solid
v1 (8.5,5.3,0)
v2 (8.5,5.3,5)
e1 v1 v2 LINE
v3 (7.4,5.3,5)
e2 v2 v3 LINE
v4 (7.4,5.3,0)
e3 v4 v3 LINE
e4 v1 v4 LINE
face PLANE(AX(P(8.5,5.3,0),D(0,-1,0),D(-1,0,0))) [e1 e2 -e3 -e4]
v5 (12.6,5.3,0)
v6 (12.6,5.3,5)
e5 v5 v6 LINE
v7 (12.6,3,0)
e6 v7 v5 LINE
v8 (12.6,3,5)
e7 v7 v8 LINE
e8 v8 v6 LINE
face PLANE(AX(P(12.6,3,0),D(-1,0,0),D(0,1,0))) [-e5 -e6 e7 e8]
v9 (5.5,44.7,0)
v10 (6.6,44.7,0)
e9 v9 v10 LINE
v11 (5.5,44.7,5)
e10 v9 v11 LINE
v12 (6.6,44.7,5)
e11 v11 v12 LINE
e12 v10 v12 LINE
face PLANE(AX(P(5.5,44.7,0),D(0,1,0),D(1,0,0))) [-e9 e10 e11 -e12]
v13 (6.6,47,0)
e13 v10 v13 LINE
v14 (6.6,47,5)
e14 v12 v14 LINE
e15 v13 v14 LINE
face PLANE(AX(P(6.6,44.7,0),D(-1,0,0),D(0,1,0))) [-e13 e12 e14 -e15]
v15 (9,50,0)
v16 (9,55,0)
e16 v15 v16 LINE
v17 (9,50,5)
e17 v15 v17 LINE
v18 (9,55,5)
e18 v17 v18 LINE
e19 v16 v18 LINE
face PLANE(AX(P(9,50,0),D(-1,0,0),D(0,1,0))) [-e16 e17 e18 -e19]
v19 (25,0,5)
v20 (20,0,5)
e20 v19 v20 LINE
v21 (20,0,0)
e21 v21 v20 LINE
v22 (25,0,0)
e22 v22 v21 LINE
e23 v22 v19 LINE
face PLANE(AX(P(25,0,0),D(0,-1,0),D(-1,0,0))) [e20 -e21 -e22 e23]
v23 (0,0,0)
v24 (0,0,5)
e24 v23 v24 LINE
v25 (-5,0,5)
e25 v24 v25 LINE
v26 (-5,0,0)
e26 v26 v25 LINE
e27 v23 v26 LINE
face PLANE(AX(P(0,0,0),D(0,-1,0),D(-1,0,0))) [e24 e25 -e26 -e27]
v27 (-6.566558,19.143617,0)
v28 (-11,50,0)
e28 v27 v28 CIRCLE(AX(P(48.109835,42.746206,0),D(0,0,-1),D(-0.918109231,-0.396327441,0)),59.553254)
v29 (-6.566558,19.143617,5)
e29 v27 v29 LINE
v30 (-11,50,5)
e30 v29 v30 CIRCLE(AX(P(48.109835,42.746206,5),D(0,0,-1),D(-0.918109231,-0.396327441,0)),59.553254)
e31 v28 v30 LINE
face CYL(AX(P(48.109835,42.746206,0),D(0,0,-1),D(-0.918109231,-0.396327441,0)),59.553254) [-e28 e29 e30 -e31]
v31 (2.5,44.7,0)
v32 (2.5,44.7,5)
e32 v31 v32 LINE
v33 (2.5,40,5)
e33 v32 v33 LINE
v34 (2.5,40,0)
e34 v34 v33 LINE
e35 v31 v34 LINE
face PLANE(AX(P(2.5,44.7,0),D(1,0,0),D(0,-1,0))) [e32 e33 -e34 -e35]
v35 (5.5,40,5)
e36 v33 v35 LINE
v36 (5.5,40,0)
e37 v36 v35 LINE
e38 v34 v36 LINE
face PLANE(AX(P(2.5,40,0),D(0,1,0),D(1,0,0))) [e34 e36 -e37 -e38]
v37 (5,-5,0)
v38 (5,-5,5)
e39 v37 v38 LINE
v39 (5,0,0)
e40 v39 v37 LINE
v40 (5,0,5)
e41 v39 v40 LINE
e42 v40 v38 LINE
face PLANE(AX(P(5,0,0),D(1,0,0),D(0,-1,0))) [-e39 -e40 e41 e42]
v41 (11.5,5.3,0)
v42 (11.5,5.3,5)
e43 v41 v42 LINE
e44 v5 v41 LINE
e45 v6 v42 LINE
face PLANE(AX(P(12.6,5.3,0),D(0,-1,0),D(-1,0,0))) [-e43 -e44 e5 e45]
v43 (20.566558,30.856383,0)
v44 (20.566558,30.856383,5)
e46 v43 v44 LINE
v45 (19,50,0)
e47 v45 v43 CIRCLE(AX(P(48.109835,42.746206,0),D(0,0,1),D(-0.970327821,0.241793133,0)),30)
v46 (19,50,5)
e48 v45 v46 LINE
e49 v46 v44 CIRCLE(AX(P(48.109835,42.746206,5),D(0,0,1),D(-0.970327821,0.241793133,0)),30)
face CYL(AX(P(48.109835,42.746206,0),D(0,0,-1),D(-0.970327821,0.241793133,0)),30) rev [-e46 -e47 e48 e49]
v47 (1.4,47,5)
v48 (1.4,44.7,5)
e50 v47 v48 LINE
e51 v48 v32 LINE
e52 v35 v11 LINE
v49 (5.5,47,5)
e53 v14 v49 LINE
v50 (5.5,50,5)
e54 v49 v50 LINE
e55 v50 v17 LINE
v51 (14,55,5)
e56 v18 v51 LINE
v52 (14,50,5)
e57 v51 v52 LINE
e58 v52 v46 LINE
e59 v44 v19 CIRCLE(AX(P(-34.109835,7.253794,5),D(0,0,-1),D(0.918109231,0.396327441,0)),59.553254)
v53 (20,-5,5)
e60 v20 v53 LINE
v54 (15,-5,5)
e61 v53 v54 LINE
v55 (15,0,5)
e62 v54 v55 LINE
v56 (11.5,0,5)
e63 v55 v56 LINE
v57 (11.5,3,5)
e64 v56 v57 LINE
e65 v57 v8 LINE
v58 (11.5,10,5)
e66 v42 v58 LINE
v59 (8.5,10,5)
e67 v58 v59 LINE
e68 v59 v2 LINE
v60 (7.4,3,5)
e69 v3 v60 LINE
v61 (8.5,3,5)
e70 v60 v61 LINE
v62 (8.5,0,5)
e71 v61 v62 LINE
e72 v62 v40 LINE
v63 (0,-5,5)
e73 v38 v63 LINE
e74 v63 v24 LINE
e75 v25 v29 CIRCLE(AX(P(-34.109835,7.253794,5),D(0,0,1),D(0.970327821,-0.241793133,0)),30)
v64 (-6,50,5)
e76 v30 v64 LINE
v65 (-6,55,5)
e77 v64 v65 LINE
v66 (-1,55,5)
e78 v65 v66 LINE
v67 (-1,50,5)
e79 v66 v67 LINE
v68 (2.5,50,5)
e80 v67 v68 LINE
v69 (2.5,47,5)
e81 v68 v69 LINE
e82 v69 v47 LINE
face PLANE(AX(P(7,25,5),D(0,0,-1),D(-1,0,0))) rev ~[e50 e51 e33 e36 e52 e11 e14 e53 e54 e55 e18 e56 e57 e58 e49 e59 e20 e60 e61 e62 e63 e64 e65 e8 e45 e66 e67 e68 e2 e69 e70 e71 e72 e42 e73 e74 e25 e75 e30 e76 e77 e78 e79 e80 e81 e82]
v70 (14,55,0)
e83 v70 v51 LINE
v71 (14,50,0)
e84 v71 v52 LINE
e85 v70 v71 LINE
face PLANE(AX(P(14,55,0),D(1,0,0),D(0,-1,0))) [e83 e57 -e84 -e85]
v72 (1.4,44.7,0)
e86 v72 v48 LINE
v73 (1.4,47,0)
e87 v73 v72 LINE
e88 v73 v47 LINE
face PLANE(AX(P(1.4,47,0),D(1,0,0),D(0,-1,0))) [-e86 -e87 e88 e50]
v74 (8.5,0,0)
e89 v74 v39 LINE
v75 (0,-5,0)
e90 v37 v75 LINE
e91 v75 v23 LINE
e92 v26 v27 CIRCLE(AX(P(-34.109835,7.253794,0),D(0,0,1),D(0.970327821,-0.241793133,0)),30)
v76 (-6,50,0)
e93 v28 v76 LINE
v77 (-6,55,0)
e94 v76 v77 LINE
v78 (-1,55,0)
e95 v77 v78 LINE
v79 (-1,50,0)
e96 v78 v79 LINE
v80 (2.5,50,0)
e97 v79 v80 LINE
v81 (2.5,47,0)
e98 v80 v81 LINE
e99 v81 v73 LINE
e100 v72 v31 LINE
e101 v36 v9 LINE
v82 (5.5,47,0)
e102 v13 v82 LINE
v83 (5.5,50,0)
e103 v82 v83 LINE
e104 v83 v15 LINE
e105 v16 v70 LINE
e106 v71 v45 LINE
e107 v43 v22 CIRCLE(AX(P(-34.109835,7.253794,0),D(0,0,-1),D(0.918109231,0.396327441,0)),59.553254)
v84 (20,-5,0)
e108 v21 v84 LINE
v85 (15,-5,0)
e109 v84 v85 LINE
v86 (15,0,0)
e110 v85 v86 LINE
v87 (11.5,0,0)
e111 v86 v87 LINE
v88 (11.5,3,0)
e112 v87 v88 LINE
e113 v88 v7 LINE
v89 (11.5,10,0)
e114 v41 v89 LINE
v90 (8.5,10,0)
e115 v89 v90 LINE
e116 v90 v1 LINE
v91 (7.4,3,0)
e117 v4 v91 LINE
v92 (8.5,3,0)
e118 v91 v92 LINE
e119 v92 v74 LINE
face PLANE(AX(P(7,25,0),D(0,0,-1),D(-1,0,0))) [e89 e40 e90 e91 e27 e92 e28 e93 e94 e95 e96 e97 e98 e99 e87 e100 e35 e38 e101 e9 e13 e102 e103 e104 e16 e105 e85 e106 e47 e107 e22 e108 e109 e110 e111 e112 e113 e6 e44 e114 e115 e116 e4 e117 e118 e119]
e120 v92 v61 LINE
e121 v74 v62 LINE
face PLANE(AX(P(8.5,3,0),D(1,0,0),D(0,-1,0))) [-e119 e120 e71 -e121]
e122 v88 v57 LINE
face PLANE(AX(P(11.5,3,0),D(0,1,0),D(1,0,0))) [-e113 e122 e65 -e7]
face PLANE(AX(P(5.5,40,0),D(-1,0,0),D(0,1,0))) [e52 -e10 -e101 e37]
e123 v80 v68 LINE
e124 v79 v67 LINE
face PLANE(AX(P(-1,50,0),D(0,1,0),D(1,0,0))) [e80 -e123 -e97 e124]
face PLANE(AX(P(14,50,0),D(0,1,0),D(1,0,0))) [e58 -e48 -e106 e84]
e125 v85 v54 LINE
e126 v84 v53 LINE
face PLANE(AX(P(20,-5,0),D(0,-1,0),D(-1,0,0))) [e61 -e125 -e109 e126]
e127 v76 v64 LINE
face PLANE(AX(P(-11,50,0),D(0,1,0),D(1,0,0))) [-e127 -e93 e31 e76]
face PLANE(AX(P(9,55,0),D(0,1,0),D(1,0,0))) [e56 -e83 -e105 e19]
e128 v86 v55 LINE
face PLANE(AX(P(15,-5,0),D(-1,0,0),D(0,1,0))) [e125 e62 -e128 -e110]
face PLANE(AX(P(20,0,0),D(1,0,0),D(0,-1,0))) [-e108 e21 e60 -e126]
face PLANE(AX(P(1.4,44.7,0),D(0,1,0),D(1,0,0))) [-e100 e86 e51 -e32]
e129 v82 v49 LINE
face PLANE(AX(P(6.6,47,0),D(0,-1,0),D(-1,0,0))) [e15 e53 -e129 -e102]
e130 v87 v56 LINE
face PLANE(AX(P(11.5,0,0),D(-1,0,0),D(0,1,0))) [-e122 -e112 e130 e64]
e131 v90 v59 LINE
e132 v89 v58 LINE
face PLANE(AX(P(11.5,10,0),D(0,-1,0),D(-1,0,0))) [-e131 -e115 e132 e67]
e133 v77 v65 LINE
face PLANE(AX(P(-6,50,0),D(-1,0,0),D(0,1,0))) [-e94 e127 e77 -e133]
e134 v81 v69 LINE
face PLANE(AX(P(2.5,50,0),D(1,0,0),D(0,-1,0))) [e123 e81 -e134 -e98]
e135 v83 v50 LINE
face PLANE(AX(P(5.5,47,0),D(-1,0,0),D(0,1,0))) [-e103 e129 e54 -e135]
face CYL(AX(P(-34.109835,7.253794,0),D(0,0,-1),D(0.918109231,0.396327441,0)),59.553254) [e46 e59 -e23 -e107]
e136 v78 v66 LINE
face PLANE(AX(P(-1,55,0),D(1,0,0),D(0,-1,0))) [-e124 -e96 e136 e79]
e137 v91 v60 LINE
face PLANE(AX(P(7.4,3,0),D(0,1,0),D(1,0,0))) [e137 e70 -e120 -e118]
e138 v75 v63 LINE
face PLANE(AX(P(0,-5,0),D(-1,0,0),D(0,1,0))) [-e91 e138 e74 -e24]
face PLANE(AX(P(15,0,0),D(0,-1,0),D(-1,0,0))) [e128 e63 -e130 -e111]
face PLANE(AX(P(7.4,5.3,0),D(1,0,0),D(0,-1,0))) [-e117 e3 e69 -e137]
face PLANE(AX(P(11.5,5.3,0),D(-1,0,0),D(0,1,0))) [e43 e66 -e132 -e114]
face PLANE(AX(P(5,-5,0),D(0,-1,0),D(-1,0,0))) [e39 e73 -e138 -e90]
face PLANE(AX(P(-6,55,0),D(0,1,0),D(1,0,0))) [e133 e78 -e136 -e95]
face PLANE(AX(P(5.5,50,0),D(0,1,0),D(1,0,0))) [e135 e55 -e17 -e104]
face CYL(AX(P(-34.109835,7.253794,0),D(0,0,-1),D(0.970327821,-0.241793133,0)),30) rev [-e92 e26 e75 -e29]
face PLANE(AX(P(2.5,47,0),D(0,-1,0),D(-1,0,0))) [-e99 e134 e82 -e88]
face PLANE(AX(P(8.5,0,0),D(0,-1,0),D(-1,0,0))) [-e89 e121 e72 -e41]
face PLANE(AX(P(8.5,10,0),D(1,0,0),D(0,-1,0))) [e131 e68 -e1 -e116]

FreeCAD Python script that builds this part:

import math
import FreeCAD as App
import Part
import Sketcher

V = App.Vector

doc = App.newDocument("Part")
body = doc.addObject("PartDesign::Body", "Body")

# Sketch on XY plane
sketch1 = body.newObject("Sketcher::SketchObject", "Sketch")
sketch1.AttachmentSupport = (doc.getObject("XY_Plane"), [""])
sketch1.MapMode = "FlatFace"
sketch1.addGeometry(Part.LineSegment(V(19, 50, 0), V(14, 50, 0)), False)
sketch1.addGeometry(Part.LineSegment(V(14, 50, 0), V(14, 55, 0)), False)
sketch1.addGeometry(Part.LineSegment(V(14, 55, 0), V(9, 55, 0)), False)
sketch1.addGeometry(Part.LineSegment(V(9, 55, 0), V(9, 50, 0)), False)
sketch1.addGeometry(Part.LineSegment(V(9, 50, 0), V(5.5, 50, 0)), False)
sketch1.addGeometry(Part.LineSegment(V(5.5, 50, 0), V(5.5, 47, 0)), False)
sketch1.addGeometry(Part.LineSegment(V(5.5, 47, 0), V(6.6, 47, 0)), False)
sketch1.addGeometry(Part.LineSegment(V(6.6, 47, 0), V(6.6, 44.7, 0)), False)
sketch1.addGeometry(Part.LineSegment(V(6.6, 44.7, 0), V(5.5, 44.7, 0)), False)
sketch1.addGeometry(Part.LineSegment(V(5.5, 44.7, 0), V(5.5, 40, 0)), False)
sketch1.addGeometry(Part.LineSegment(V(5.5, 40, 0), V(2.5, 40, 0)), False)
sketch1.addGeometry(Part.LineSegment(V(2.5, 40, 0), V(2.5, 44.7, 0)), False)
sketch1.addGeometry(Part.LineSegment(V(2.5, 44.7, 0), V(1.4, 44.7, 0)), False)
sketch1.addGeometry(Part.LineSegment(V(1.4, 44.7, 0), V(1.4, 47, 0)), False)
sketch1.addGeometry(Part.LineSegment(V(1.4, 47, 0), V(2.5, 47, 0)), False)
sketch1.addGeometry(Part.LineSegment(V(2.5, 47, 0), V(2.5, 50, 0)), False)
sketch1.addGeometry(Part.LineSegment(V(2.5, 50, 0), V(-1, 50, 0)), False)
sketch1.addGeometry(Part.LineSegment(V(-1, 50, 0), V(-1, 55, 0)), False)
sketch1.addGeometry(Part.LineSegment(V(-1, 55, 0), V(-6, 55, 0)), False)
sketch1.addGeometry(Part.LineSegment(V(-6, 55, 0), V(-6, 50, 0)), False)
sketch1.addGeometry(Part.LineSegment(V(-6, 50, 0), V(-11, 50, 0)), False)
sketch1.addGeometry(Part.ArcOfCircle(Part.Circle(V(48.1, 42.7, 0), V(0, 0, 1), 59.6), math.radians(173), math.radians(203)), False)
sketch1.addGeometry(Part.ArcOfCircle(Part.Circle(V(-34.1, 7.3, 0), V(0, 0, 1), 30), math.radians(-14), math.radians(23)), False)
sketch1.addGeometry(Part.LineSegment(V(-5, 0, 0), V(0, 0, 0)), False)
sketch1.addGeometry(Part.LineSegment(V(0, 0, 0), V(0, -5, 0)), False)
sketch1.addGeometry(Part.LineSegment(V(0, -5, 0), V(5, -5, 0)), False)
sketch1.addGeometry(Part.LineSegment(V(5, -5, 0), V(5, 0, 0)), False)
sketch1.addGeometry(Part.LineSegment(V(5, 0, 0), V(8.5, 0, 0)), False)
sketch1.addGeometry(Part.LineSegment(V(8.5, 0, 0), V(8.5, 3, 0)), False)
sketch1.addGeometry(Part.LineSegment(V(8.5, 3, 0), V(7.4, 3, 0)), False)
sketch1.addGeometry(Part.LineSegment(V(7.4, 3, 0), V(7.4, 5.3, 0)), False)
sketch1.addGeometry(Part.LineSegment(V(7.4, 5.3, 0), V(8.5, 5.3, 0)), False)
sketch1.addGeometry(Part.LineSegment(V(8.5, 5.3, 0), V(8.5, 10, 0)), False)
sketch1.addGeometry(Part.LineSegment(V(8.5, 10, 0), V(11.5, 10, 0)), False)
sketch1.addGeometry(Part.LineSegment(V(11.5, 10, 0), V(11.5, 5.3, 0)), False)
sketch1.addGeometry(Part.LineSegment(V(11.5, 5.3, 0), V(12.6, 5.3, 0)), False)
sketch1.addGeometry(Part.LineSegment(V(12.6, 5.3, 0), V(12.6, 3, 0)), False)
sketch1.addGeometry(Part.LineSegment(V(12.6, 3, 0), V(11.5, 3, 0)), False)
sketch1.addGeometry(Part.LineSegment(V(11.5, 3, 0), V(11.5, 0, 0)), False)
sketch1.addGeometry(Part.LineSegment(V(11.5, 0, 0), V(15, 0, 0)), False)
sketch1.addGeometry(Part.LineSegment(V(15, 0, 0), V(15, -5, 0)), False)
sketch1.addGeometry(Part.LineSegment(V(15, -5, 0), V(20, -5, 0)), False)
sketch1.addGeometry(Part.LineSegment(V(20, -5, 0), V(20, 0, 0)), False)
sketch1.addGeometry(Part.LineSegment(V(20, 0, 0), V(25, 0, 0)), False)
sketch1.addGeometry(Part.ArcOfCircle(Part.Circle(V(-34.1, 7.3, 0), V(0, 0, 1), 59.6), math.radians(-7), math.radians(23)), False)
sketch1.addGeometry(Part.ArcOfCircle(Part.Circle(V(48.1, 42.7, 0), V(0, 0, 1), 30), math.radians(166), math.radians(203)), False)
sketch1.addConstraint(Sketcher.Constraint("Coincident", 0, 2, 1, 1))
sketch1.addConstraint(Sketcher.Constraint("Coincident", 1, 2, 2, 1))
sketch1.addConstraint(Sketcher.Constraint("Coincident", 2, 2, 3, 1))
sketch1.addConstraint(Sketcher.Constraint("Coincident", 3, 2, 4, 1))
sketch1.addConstraint(Sketcher.Constraint("Coincident", 4, 2, 5, 1))
sketch1.addConstraint(Sketcher.Constraint("Coincident", 5, 2, 6, 1))
sketch1.addConstraint(Sketcher.Constraint("Coincident", 6, 2, 7, 1))
sketch1.addConstraint(Sketcher.Constraint("Coincident", 7, 2, 8, 1))
sketch1.addConstraint(Sketcher.Constraint("Coincident", 8, 2, 9, 1))
sketch1.addConstraint(Sketcher.Constraint("Coincident", 9, 2, 10, 1))
sketch1.addConstraint(Sketcher.Constraint("Coincident", 10, 2, 11, 1))
sketch1.addConstraint(Sketcher.Constraint("Coincident", 11, 2, 12, 1))
sketch1.addConstraint(Sketcher.Constraint("Coincident", 12, 2, 13, 1))
sketch1.addConstraint(Sketcher.Constraint("Coincident", 13, 2, 14, 1))
sketch1.addConstraint(Sketcher.Constraint("Coincident", 14, 2, 15, 1))
sketch1.addConstraint(Sketcher.Constraint("Coincident", 15, 2, 16, 1))
sketch1.addConstraint(Sketcher.Constraint("Coincident", 16, 2, 17, 1))
sketch1.addConstraint(Sketcher.Constraint("Coincident", 17, 2, 18, 1))
sketch1.addConstraint(Sketcher.Constraint("Coincident", 18, 2, 19, 1))
sketch1.addConstraint(Sketcher.Constraint("Coincident", 19, 2, 20, 1))
sketch1.addConstraint(Sketcher.Constraint("Coincident", 20, 2, 21, 1))
sketch1.addConstraint(Sketcher.Constraint("Tangent", 21, 2, 22, 2))
sketch1.addConstraint(Sketcher.Constraint("Coincident", 22, 1, 23, 1))
sketch1.addConstraint(Sketcher.Constraint("Coincident", 23, 2, 24, 1))
sketch1.addConstraint(Sketcher.Constraint("Coincident", 24, 2, 25, 1))
sketch1.addConstraint(Sketcher.Constraint("Coincident", 25, 2, 26, 1))
sketch1.addConstraint(Sketcher.Constraint("Coincident", 26, 2, 27, 1))
sketch1.addConstraint(Sketcher.Constraint("Coincident", 27, 2, 28, 1))
sketch1.addConstraint(Sketcher.Constraint("Coincident", 28, 2, 29, 1))
sketch1.addConstraint(Sketcher.Constraint("Coincident", 29, 2, 30, 1))
sketch1.addConstraint(Sketcher.Constraint("Coincident", 30, 2, 31, 1))
sketch1.addConstraint(Sketcher.Constraint("Coincident", 31, 2, 32, 1))
sketch1.addConstraint(Sketcher.Constraint("Coincident", 32, 2, 33, 1))
sketch1.addConstraint(Sketcher.Constraint("Coincident", 33, 2, 34, 1))
sketch1.addConstraint(Sketcher.Constraint("Coincident", 34, 2, 35, 1))
sketch1.addConstraint(Sketcher.Constraint("Coincident", 35, 2, 36, 1))
sketch1.addConstraint(Sketcher.Constraint("Coincident", 36, 2, 37, 1))
sketch1.addConstraint(Sketcher.Constraint("Coincident", 37, 2, 38, 1))
sketch1.addConstraint(Sketcher.Constraint("Coincident", 38, 2, 39, 1))
sketch1.addConstraint(Sketcher.Constraint("Coincident", 39, 2, 40, 1))
sketch1.addConstraint(Sketcher.Constraint("Coincident", 40, 2, 41, 1))
sketch1.addConstraint(Sketcher.Constraint("Coincident", 41, 2, 42, 1))
sketch1.addConstraint(Sketcher.Constraint("Coincident", 42, 2, 43, 1))
sketch1.addConstraint(Sketcher.Constraint("Coincident", 43, 2, 44, 1))
sketch1.addConstraint(Sketcher.Constraint("Tangent", 44, 2, 45, 2))
sketch1.addConstraint(Sketcher.Constraint("Coincident", 45, 1, 0, 1))
sketch1.addConstraint(Sketcher.Constraint("Horizontal", 0))
sketch1.addConstraint(Sketcher.Constraint("Vertical", 1))
sketch1.addConstraint(Sketcher.Constraint("Horizontal", 2))
sketch1.addConstraint(Sketcher.Constraint("Vertical", 3))
sketch1.addConstraint(Sketcher.Constraint("Horizontal", 4))
sketch1.addConstraint(Sketcher.Constraint("Vertical", 5))
sketch1.addConstraint(Sketcher.Constraint("Horizontal", 6))
sketch1.addConstraint(Sketcher.Constraint("Vertical", 7))
sketch1.addConstraint(Sketcher.Constraint("Horizontal", 8))
sketch1.addConstraint(Sketcher.Constraint("Vertical", 9))
sketch1.addConstraint(Sketcher.Constraint("Horizontal", 10))
sketch1.addConstraint(Sketcher.Constraint("Vertical", 11))
sketch1.addConstraint(Sketcher.Constraint("Horizontal", 12))
sketch1.addConstraint(Sketcher.Constraint("Vertical", 13))
sketch1.addConstraint(Sketcher.Constraint("Horizontal", 14))
sketch1.addConstraint(Sketcher.Constraint("Vertical", 15))
sketch1.addConstraint(Sketcher.Constraint("Horizontal", 16))
sketch1.addConstraint(Sketcher.Constraint("Vertical", 17))
sketch1.addConstraint(Sketcher.Constraint("Horizontal", 18))
sketch1.addConstraint(Sketcher.Constraint("Vertical", 19))
sketch1.addConstraint(Sketcher.Constraint("Horizontal", 20))
sketch1.addConstraint(Sketcher.Constraint("Horizontal", 23))
sketch1.addConstraint(Sketcher.Constraint("Vertical", 24))
sketch1.addConstraint(Sketcher.Constraint("Horizontal", 25))
sketch1.addConstraint(Sketcher.Constraint("Vertical", 26))
sketch1.addConstraint(Sketcher.Constraint("Horizontal", 27))
sketch1.addConstraint(Sketcher.Constraint("Vertical", 28))
sketch1.addConstraint(Sketcher.Constraint("Horizontal", 29))
sketch1.addConstraint(Sketcher.Constraint("Vertical", 30))
sketch1.addConstraint(Sketcher.Constraint("Horizontal", 31))
sketch1.addConstraint(Sketcher.Constraint("Vertical", 32))
sketch1.addConstraint(Sketcher.Constraint("Horizontal", 33))
sketch1.addConstraint(Sketcher.Constraint("Vertical", 34))
sketch1.addConstraint(Sketcher.Constraint("Horizontal", 35))
sketch1.addConstraint(Sketcher.Constraint("Vertical", 36))
sketch1.addConstraint(Sketcher.Constraint("Horizontal", 37))
sketch1.addConstraint(Sketcher.Constraint("Vertical", 38))
sketch1.addConstraint(Sketcher.Constraint("Horizontal", 39))
sketch1.addConstraint(Sketcher.Constraint("Vertical", 40))
sketch1.addConstraint(Sketcher.Constraint("Horizontal", 41))
sketch1.addConstraint(Sketcher.Constraint("Vertical", 42))
sketch1.addConstraint(Sketcher.Constraint("Horizontal", 43))
sketch1.addConstraint(Sketcher.Constraint("Coincident", 23, 2, -1, 1))
sketch1.addConstraint(Sketcher.Constraint("Coincident", 44, 3, 22, 3))
sketch1.addConstraint(Sketcher.Constraint("Coincident", 45, 3, 21, 3))
sketch1.addConstraint(Sketcher.Constraint("Equal", 21, 44))
sketch1.addConstraint(Sketcher.Constraint("Symmetric", 22, 1, 26, 2, -1, 1))
sketch1.addConstraint(Sketcher.Constraint("PointOnObject", 38, 2, -1))
sketch1.addConstraint(Sketcher.Constraint("PointOnObject", 42, 2, -1))
sketch1.addConstraint(Sketcher.Constraint("Horizontal", 0, 2, 3, 2))
sketch1.addConstraint(Sketcher.Constraint("Horizontal", 8, 2, 11, 2))
sketch1.addConstraint(Sketcher.Constraint("Horizontal", 6, 2, 13, 2))
sketch1.addConstraint(Sketcher.Constraint("Horizontal", 4, 2, 15, 2))
sketch1.addConstraint(Sketcher.Constraint("Horizontal", 2, 2, 17, 2))
sketch1.addConstraint(Sketcher.Constraint("Horizontal", 16, 2, 19, 2))
sketch1.addConstraint(Sketcher.Constraint("Horizontal", 31, 2, 34, 2))
sketch1.addConstraint(Sketcher.Constraint("Horizontal", 29, 2, 36, 2))
sketch1.addConstraint(Sketcher.Constraint("Horizontal", 25, 2, 40, 2))
sketch1.addConstraint(Sketcher.Constraint("Vertical", 5, 2, 8, 2))
sketch1.addConstraint(Sketcher.Constraint("Vertical", 11, 2, 14, 2))
sketch1.addConstraint(Sketcher.Constraint("Vertical", 28, 2, 31, 2))
sketch1.addConstraint(Sketcher.Constraint("Vertical", 34, 2, 37, 2))
sketch1.addConstraint(Sketcher.Constraint("Equal", 0, 2))
sketch1.addConstraint(Sketcher.Constraint("Equal", 8, 12))
sketch1.addConstraint(Sketcher.Constraint("Equal", 4, 16))
sketch1.addConstraint(Sketcher.Constraint("Equal", 2, 18))
sketch1.addConstraint(Sketcher.Constraint("Equal", 18, 20))
sketch1.addConstraint(Sketcher.Constraint("Equal", 20, 23))
sketch1.addConstraint(Sketcher.Constraint("Equal", 16, 27))
sketch1.addConstraint(Sketcher.Constraint("Equal", 14, 29))
sketch1.addConstraint(Sketcher.Constraint("Equal", 10, 33))
sketch1.addConstraint(Sketcher.Constraint("Equal", 31, 35))
sketch1.addConstraint(Sketcher.Constraint("Equal", 27, 39))
sketch1.addConstraint(Sketcher.Constraint("Equal", 25, 41))
sketch1.addConstraint(Sketcher.Constraint("Equal", 41, 43))
sketch1.addConstraint(Sketcher.Constraint("Equal", 43, 1))
sketch1.addConstraint(Sketcher.Constraint("Equal", 33, 5))
sketch1.addConstraint(Sketcher.Constraint("Equal", 19, 24))
sketch1.addConstraint(Sketcher.Constraint("Equal", 15, 28))
sketch1.addConstraint(Sketcher.Constraint("Equal", 13, 30))
sketch1.addConstraint(Sketcher.Constraint("Equal", 11, 32))
sketch1.addConstraint(Sketcher.Constraint("Radius", 22, 30.0))
sketch1.addConstraint(Sketcher.Constraint("DistanceX", 0, 2, 0, 1, 5.0))
sketch1.addConstraint(Sketcher.Constraint("DistanceX", 10, 2, 10, 1, 3.0))
sketch1.addConstraint(Sketcher.Constraint("DistanceX", 4, 2, 4, 1, 3.5))
sketch1.addConstraint(Sketcher.Constraint("DistanceX", 6, 1, 6, 2, 1.1))
sketch1.addConstraint(Sketcher.Constraint("DistanceY", 7, 2, 7, 1, 2.3))
sketch1.addConstraint(Sketcher.Constraint("DistanceY", 9, 2, 9, 1, 4.7))
sketch1.addConstraint(Sketcher.Constraint("DistanceX", -1, 1, 0, 2, 14.0))
sketch1.addConstraint(Sketcher.Constraint("DistanceY", -1, 1, 0, 2, 50.0))
pad1 = body.newObject("PartDesign::Pad", "Pad")
pad1.Profile = sketch1
pad1.Length = 5

doc.recompute()
